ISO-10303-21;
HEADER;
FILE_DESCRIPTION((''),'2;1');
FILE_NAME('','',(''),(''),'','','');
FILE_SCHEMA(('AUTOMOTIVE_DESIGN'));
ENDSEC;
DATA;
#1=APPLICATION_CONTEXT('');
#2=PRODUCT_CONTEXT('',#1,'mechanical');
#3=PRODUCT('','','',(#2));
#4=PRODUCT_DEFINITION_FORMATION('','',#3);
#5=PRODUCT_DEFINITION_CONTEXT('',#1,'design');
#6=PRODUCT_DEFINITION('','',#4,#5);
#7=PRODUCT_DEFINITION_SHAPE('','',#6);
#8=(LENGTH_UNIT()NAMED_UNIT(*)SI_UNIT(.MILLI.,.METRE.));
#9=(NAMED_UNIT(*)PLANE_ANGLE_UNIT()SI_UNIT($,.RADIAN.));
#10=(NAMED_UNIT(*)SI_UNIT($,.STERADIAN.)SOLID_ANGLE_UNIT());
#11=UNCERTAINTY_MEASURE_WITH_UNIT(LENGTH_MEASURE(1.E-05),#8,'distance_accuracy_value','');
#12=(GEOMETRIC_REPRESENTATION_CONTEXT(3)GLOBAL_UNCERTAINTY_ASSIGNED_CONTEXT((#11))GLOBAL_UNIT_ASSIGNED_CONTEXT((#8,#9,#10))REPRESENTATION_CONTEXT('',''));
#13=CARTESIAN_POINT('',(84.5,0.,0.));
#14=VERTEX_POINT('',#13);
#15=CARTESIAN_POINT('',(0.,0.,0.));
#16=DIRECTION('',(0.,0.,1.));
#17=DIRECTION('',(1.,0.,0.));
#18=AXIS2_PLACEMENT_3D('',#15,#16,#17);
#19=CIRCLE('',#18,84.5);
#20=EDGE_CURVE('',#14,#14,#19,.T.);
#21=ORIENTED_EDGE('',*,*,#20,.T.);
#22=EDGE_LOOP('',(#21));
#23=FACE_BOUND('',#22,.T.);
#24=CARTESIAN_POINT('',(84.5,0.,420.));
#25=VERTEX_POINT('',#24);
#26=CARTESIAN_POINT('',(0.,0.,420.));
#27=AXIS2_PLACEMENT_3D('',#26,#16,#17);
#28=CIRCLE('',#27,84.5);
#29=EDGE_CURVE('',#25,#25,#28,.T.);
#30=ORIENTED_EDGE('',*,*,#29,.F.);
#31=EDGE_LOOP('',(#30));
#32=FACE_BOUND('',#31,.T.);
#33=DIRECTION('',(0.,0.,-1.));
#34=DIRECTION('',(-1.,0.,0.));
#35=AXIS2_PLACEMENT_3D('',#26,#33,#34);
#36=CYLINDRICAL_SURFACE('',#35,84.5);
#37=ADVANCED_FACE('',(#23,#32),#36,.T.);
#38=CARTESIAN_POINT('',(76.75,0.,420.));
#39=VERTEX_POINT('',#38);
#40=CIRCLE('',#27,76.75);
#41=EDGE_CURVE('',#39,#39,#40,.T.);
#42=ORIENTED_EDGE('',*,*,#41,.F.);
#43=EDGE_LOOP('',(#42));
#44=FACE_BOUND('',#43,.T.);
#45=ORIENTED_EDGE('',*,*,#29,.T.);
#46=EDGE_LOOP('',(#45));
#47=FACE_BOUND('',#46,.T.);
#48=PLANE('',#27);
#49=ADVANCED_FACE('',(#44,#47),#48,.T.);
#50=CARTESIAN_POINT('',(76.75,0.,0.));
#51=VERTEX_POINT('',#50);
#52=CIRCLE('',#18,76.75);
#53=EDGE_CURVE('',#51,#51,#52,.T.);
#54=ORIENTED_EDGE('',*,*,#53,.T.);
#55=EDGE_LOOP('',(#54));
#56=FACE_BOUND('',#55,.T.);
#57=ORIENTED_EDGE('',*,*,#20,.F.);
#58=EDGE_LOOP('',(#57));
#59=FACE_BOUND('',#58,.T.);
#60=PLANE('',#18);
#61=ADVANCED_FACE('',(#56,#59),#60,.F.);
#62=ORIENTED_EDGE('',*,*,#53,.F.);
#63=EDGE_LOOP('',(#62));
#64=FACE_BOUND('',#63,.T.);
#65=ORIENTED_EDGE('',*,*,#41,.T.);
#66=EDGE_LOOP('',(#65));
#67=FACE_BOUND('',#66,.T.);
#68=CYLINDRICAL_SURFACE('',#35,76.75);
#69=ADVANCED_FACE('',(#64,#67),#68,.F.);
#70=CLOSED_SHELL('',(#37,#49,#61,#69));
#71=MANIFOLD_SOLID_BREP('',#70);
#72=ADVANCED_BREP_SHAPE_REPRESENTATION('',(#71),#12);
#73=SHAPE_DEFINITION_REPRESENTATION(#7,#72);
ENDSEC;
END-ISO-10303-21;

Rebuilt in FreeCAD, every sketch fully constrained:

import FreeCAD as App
import Part
import Sketcher

V = App.Vector

doc = App.newDocument("Part")
body = doc.addObject("PartDesign::Body", "Body")

# Sketch on XY plane
sketch1 = body.newObject("Sketcher::SketchObject", "Sketch")
sketch1.AttachmentSupport = (doc.getObject("XY_Plane"), [""])
sketch1.MapMode = "FlatFace"
sketch1.addGeometry(Part.Circle(V(0, 0, 0), V(0, 0, 1), 84), False)
sketch1.addGeometry(Part.Circle(V(0, 0, 0), V(0, 0, 1), 77), False)
sketch1.addConstraint(Sketcher.Constraint("Coincident", 0, 3, -1, 1))
sketch1.addConstraint(Sketcher.Constraint("Coincident", 1, 3, -1, 1))
sketch1.addConstraint(Sketcher.Constraint("Diameter", 0, 169.0))
sketch1.addConstraint(Sketcher.Constraint("Diameter", 1, 153.5))
pad1 = body.newObject("PartDesign::Pad", "Pad")
pad1.Profile = sketch1
pad1.Length = 420

doc.recompute()
